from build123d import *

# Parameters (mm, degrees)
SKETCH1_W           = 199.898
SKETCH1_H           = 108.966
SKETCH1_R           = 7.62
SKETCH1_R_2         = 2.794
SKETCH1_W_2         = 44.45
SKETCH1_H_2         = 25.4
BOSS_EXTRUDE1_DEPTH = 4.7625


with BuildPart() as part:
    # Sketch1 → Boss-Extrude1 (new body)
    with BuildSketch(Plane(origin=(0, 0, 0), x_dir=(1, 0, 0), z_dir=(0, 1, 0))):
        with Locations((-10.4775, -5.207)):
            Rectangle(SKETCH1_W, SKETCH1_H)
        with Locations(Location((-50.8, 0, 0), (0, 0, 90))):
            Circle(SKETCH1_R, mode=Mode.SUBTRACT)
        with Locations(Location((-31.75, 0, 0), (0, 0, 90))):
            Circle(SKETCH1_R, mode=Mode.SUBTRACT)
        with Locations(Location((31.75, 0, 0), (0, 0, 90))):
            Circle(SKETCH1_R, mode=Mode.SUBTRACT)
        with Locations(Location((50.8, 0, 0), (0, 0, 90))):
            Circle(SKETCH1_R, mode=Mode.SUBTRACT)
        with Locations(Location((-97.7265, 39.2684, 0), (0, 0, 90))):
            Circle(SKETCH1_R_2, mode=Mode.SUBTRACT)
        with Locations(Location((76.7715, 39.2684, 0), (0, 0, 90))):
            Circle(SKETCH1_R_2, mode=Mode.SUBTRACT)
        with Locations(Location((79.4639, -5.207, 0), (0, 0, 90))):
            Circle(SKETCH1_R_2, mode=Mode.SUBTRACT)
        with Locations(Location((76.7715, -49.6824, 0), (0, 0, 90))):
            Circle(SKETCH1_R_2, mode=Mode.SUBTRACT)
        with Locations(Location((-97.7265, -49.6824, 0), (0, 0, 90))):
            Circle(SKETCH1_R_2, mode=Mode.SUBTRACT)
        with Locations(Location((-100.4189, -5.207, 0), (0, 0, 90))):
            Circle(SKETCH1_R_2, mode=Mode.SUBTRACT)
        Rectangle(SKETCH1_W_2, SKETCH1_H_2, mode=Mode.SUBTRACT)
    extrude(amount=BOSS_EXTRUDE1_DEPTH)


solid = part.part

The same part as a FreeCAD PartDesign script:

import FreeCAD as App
import Part
import Sketcher
Q = App.Units.Quantity


def add_polygon(sketch, points):
    """Adds a closed chain of lines whose ends are joined by coincident constraints."""
    first, n = sketch.GeometryCount, len(points)
    for a, b in zip(points, points[1:] + points[:1]):
        sketch.addGeometry(Part.LineSegment(App.Vector(*a, 0), App.Vector(*b, 0)), False)
    for i in range(n):
        sketch.addConstraint(Sketcher.Constraint("Coincident", first + i, 2, first + (i + 1) % n, 1))

doc = App.newDocument("Part")
body = doc.addObject("PartDesign::Body", "Body")

# Sketch on XZ plane
sketch1 = doc.addObject("Sketcher::SketchObject", "Sketch")
body.addObject(sketch1)
sketch1.AttachmentSupport = (doc.XZ_Plane, [""])
sketch1.MapMode = "FlatFace"
add_polygon(sketch1, [(-110.4265, -49.276), (-110.4265, 59.69), (89.4715, 59.69), (89.4715, -49.276)])  # lines 0-3
sketch1.addGeometry(Part.Circle(App.Vector(-97.7265, 49.6824, 0), App.Vector(0, 0, 1), 2.794), False)  # 4
sketch1.addGeometry(Part.Circle(App.Vector(76.7715, 49.6824, 0), App.Vector(0, 0, 1), 2.794), False)  # 5
sketch1.addGeometry(Part.Circle(App.Vector(-100.4189, 5.207, 0), App.Vector(0, 0, 1), 2.794), False)  # 6
sketch1.addGeometry(Part.Circle(App.Vector(-50.8, 0, 0), App.Vector(0, 0, 1), 7.62), False)  # 7
sketch1.addGeometry(Part.Circle(App.Vector(-31.75, 0, 0), App.Vector(0, 0, 1), 7.62), False)  # 8
sketch1.addGeometry(Part.Circle(App.Vector(-97.7265, -39.2684, 0), App.Vector(0, 0, 1), 2.794), False)  # 9
add_polygon(sketch1, [(22.225, 12.7), (-22.225, 12.7), (-22.225, -12.7), (22.225, -12.7)])  # lines 10-13
sketch1.addGeometry(Part.Circle(App.Vector(31.75, 0, 0), App.Vector(0, 0, 1), 7.62), False)  # 14
sketch1.addGeometry(Part.Circle(App.Vector(50.8, 0, 0), App.Vector(0, 0, 1), 7.62), False)  # 15
sketch1.addGeometry(Part.Circle(App.Vector(79.4639, 5.207, 0), App.Vector(0, 0, 1), 2.794), False)  # 16
sketch1.addGeometry(Part.Circle(App.Vector(76.7715, -39.2684, 0), App.Vector(0, 0, 1), 2.794), False)  # 17
sketch1.addConstraint(Sketcher.Constraint("Vertical", 0))
sketch1.addConstraint(Sketcher.Constraint("Horizontal", 1))
sketch1.addConstraint(Sketcher.Constraint("Vertical", 2))
sketch1.addConstraint(Sketcher.Constraint("Horizontal", 3))
sketch1.addConstraint(Sketcher.Constraint("Horizontal", 10))
sketch1.addConstraint(Sketcher.Constraint("Vertical", 11))
sketch1.addConstraint(Sketcher.Constraint("Horizontal", 12))
sketch1.addConstraint(Sketcher.Constraint("Vertical", 13))
sketch1.addConstraint(Sketcher.Constraint("Equal", 4, 5))
sketch1.addConstraint(Sketcher.Constraint("Equal", 5, 6))
sketch1.addConstraint(Sketcher.Constraint("Equal", 7, 8))
sketch1.addConstraint(Sketcher.Constraint("Equal", 6, 9))
sketch1.addConstraint(Sketcher.Constraint("Equal", 8, 14))
sketch1.addConstraint(Sketcher.Constraint("Equal", 14, 15))
sketch1.addConstraint(Sketcher.Constraint("Equal", 9, 16))
sketch1.addConstraint(Sketcher.Constraint("Equal", 16, 17))
sketch1.addConstraint(Sketcher.Constraint("Symmetric", 8, 3, 14, 3, -1, 1))
sketch1.addConstraint(Sketcher.Constraint("Symmetric", 7, 3, 15, 3, -1, 1))
sketch1.addConstraint(Sketcher.Constraint("Symmetric", 10, 2, 12, 2, -1, 1))
sketch1.addConstraint(Sketcher.Constraint("PointOnObject", 7, 3, -1))
sketch1.addConstraint(Sketcher.Constraint("PointOnObject", 8, 3, -1))
sketch1.addConstraint(Sketcher.Constraint("Horizontal", 4, 3, 5, 3))
sketch1.addConstraint(Sketcher.Constraint("Horizontal", 6, 3, 16, 3))
sketch1.addConstraint(Sketcher.Constraint("Horizontal", 9, 3, 17, 3))
sketch1.addConstraint(Sketcher.Constraint("Vertical", 4, 3, 9, 3))
sketch1.addConstraint(Sketcher.Constraint("Vertical", 5, 3, 17, 3))
sketch1.addConstraint(Sketcher.Constraint("Diameter", 7, Q("0.6 in")))
sketch1.addConstraint(Sketcher.Constraint("Diameter", 4, Q("0.22 in")))
sketch1.addConstraint(Sketcher.Constraint("DistanceY", 11, 2, 11, 1, Q("1 in")))
sketch1.addConstraint(Sketcher.Constraint("DistanceX", 7, 3, -1, 1, Q("2 in")))
sketch1.addConstraint(Sketcher.Constraint("DistanceX", 1, 1, 1, 2, Q("7.87 in")))
sketch1.addConstraint(Sketcher.Constraint("DistanceX", 10, 2, 10, 1, Q("1.75 in")))
sketch1.addConstraint(Sketcher.Constraint("DistanceY", 0, 1, 0, 2, Q("4.29 in")))
sketch1.addConstraint(Sketcher.Constraint("DistanceX", 8, 3, 14, 3, Q("2.5 in")))
sketch1.addConstraint(Sketcher.Constraint("DistanceX", 0, 2, 4, 3, Q("0.5 in")))
sketch1.addConstraint(Sketcher.Constraint("DistanceX", 5, 3, 1, 2, Q("0.5 in")))
sketch1.addConstraint(Sketcher.Constraint("DistanceY", -1, 1, 0, 2, Q("2.35 in")))
sketch1.addConstraint(Sketcher.Constraint("DistanceY", -1, 1, 4, 3, Q("1.956 in")))
sketch1.addConstraint(Sketcher.Constraint("DistanceY", -1, 1, 6, 3, Q("0.205 in")))
sketch1.addConstraint(Sketcher.Constraint("DistanceY", 9, 3, -1, 1, Q("1.546 in")))
sketch1.addConstraint(Sketcher.Constraint("DistanceX", 6, 3, 4, 3, Q("0.106 in")))
sketch1.addConstraint(Sketcher.Constraint("DistanceX", 5, 3, 16, 3, Q("0.106 in")))
sketch1.addConstraint(Sketcher.Constraint("DistanceX", 4, 3, -1, 1, Q("3.8475 in")))
pad1 = doc.addObject("PartDesign::Pad", "Pad")
body.addObject(pad1)
pad1.Profile = sketch1
pad1.Length = Q("0.1875 in")
pad1.Reversed = True

doc.recompute()
